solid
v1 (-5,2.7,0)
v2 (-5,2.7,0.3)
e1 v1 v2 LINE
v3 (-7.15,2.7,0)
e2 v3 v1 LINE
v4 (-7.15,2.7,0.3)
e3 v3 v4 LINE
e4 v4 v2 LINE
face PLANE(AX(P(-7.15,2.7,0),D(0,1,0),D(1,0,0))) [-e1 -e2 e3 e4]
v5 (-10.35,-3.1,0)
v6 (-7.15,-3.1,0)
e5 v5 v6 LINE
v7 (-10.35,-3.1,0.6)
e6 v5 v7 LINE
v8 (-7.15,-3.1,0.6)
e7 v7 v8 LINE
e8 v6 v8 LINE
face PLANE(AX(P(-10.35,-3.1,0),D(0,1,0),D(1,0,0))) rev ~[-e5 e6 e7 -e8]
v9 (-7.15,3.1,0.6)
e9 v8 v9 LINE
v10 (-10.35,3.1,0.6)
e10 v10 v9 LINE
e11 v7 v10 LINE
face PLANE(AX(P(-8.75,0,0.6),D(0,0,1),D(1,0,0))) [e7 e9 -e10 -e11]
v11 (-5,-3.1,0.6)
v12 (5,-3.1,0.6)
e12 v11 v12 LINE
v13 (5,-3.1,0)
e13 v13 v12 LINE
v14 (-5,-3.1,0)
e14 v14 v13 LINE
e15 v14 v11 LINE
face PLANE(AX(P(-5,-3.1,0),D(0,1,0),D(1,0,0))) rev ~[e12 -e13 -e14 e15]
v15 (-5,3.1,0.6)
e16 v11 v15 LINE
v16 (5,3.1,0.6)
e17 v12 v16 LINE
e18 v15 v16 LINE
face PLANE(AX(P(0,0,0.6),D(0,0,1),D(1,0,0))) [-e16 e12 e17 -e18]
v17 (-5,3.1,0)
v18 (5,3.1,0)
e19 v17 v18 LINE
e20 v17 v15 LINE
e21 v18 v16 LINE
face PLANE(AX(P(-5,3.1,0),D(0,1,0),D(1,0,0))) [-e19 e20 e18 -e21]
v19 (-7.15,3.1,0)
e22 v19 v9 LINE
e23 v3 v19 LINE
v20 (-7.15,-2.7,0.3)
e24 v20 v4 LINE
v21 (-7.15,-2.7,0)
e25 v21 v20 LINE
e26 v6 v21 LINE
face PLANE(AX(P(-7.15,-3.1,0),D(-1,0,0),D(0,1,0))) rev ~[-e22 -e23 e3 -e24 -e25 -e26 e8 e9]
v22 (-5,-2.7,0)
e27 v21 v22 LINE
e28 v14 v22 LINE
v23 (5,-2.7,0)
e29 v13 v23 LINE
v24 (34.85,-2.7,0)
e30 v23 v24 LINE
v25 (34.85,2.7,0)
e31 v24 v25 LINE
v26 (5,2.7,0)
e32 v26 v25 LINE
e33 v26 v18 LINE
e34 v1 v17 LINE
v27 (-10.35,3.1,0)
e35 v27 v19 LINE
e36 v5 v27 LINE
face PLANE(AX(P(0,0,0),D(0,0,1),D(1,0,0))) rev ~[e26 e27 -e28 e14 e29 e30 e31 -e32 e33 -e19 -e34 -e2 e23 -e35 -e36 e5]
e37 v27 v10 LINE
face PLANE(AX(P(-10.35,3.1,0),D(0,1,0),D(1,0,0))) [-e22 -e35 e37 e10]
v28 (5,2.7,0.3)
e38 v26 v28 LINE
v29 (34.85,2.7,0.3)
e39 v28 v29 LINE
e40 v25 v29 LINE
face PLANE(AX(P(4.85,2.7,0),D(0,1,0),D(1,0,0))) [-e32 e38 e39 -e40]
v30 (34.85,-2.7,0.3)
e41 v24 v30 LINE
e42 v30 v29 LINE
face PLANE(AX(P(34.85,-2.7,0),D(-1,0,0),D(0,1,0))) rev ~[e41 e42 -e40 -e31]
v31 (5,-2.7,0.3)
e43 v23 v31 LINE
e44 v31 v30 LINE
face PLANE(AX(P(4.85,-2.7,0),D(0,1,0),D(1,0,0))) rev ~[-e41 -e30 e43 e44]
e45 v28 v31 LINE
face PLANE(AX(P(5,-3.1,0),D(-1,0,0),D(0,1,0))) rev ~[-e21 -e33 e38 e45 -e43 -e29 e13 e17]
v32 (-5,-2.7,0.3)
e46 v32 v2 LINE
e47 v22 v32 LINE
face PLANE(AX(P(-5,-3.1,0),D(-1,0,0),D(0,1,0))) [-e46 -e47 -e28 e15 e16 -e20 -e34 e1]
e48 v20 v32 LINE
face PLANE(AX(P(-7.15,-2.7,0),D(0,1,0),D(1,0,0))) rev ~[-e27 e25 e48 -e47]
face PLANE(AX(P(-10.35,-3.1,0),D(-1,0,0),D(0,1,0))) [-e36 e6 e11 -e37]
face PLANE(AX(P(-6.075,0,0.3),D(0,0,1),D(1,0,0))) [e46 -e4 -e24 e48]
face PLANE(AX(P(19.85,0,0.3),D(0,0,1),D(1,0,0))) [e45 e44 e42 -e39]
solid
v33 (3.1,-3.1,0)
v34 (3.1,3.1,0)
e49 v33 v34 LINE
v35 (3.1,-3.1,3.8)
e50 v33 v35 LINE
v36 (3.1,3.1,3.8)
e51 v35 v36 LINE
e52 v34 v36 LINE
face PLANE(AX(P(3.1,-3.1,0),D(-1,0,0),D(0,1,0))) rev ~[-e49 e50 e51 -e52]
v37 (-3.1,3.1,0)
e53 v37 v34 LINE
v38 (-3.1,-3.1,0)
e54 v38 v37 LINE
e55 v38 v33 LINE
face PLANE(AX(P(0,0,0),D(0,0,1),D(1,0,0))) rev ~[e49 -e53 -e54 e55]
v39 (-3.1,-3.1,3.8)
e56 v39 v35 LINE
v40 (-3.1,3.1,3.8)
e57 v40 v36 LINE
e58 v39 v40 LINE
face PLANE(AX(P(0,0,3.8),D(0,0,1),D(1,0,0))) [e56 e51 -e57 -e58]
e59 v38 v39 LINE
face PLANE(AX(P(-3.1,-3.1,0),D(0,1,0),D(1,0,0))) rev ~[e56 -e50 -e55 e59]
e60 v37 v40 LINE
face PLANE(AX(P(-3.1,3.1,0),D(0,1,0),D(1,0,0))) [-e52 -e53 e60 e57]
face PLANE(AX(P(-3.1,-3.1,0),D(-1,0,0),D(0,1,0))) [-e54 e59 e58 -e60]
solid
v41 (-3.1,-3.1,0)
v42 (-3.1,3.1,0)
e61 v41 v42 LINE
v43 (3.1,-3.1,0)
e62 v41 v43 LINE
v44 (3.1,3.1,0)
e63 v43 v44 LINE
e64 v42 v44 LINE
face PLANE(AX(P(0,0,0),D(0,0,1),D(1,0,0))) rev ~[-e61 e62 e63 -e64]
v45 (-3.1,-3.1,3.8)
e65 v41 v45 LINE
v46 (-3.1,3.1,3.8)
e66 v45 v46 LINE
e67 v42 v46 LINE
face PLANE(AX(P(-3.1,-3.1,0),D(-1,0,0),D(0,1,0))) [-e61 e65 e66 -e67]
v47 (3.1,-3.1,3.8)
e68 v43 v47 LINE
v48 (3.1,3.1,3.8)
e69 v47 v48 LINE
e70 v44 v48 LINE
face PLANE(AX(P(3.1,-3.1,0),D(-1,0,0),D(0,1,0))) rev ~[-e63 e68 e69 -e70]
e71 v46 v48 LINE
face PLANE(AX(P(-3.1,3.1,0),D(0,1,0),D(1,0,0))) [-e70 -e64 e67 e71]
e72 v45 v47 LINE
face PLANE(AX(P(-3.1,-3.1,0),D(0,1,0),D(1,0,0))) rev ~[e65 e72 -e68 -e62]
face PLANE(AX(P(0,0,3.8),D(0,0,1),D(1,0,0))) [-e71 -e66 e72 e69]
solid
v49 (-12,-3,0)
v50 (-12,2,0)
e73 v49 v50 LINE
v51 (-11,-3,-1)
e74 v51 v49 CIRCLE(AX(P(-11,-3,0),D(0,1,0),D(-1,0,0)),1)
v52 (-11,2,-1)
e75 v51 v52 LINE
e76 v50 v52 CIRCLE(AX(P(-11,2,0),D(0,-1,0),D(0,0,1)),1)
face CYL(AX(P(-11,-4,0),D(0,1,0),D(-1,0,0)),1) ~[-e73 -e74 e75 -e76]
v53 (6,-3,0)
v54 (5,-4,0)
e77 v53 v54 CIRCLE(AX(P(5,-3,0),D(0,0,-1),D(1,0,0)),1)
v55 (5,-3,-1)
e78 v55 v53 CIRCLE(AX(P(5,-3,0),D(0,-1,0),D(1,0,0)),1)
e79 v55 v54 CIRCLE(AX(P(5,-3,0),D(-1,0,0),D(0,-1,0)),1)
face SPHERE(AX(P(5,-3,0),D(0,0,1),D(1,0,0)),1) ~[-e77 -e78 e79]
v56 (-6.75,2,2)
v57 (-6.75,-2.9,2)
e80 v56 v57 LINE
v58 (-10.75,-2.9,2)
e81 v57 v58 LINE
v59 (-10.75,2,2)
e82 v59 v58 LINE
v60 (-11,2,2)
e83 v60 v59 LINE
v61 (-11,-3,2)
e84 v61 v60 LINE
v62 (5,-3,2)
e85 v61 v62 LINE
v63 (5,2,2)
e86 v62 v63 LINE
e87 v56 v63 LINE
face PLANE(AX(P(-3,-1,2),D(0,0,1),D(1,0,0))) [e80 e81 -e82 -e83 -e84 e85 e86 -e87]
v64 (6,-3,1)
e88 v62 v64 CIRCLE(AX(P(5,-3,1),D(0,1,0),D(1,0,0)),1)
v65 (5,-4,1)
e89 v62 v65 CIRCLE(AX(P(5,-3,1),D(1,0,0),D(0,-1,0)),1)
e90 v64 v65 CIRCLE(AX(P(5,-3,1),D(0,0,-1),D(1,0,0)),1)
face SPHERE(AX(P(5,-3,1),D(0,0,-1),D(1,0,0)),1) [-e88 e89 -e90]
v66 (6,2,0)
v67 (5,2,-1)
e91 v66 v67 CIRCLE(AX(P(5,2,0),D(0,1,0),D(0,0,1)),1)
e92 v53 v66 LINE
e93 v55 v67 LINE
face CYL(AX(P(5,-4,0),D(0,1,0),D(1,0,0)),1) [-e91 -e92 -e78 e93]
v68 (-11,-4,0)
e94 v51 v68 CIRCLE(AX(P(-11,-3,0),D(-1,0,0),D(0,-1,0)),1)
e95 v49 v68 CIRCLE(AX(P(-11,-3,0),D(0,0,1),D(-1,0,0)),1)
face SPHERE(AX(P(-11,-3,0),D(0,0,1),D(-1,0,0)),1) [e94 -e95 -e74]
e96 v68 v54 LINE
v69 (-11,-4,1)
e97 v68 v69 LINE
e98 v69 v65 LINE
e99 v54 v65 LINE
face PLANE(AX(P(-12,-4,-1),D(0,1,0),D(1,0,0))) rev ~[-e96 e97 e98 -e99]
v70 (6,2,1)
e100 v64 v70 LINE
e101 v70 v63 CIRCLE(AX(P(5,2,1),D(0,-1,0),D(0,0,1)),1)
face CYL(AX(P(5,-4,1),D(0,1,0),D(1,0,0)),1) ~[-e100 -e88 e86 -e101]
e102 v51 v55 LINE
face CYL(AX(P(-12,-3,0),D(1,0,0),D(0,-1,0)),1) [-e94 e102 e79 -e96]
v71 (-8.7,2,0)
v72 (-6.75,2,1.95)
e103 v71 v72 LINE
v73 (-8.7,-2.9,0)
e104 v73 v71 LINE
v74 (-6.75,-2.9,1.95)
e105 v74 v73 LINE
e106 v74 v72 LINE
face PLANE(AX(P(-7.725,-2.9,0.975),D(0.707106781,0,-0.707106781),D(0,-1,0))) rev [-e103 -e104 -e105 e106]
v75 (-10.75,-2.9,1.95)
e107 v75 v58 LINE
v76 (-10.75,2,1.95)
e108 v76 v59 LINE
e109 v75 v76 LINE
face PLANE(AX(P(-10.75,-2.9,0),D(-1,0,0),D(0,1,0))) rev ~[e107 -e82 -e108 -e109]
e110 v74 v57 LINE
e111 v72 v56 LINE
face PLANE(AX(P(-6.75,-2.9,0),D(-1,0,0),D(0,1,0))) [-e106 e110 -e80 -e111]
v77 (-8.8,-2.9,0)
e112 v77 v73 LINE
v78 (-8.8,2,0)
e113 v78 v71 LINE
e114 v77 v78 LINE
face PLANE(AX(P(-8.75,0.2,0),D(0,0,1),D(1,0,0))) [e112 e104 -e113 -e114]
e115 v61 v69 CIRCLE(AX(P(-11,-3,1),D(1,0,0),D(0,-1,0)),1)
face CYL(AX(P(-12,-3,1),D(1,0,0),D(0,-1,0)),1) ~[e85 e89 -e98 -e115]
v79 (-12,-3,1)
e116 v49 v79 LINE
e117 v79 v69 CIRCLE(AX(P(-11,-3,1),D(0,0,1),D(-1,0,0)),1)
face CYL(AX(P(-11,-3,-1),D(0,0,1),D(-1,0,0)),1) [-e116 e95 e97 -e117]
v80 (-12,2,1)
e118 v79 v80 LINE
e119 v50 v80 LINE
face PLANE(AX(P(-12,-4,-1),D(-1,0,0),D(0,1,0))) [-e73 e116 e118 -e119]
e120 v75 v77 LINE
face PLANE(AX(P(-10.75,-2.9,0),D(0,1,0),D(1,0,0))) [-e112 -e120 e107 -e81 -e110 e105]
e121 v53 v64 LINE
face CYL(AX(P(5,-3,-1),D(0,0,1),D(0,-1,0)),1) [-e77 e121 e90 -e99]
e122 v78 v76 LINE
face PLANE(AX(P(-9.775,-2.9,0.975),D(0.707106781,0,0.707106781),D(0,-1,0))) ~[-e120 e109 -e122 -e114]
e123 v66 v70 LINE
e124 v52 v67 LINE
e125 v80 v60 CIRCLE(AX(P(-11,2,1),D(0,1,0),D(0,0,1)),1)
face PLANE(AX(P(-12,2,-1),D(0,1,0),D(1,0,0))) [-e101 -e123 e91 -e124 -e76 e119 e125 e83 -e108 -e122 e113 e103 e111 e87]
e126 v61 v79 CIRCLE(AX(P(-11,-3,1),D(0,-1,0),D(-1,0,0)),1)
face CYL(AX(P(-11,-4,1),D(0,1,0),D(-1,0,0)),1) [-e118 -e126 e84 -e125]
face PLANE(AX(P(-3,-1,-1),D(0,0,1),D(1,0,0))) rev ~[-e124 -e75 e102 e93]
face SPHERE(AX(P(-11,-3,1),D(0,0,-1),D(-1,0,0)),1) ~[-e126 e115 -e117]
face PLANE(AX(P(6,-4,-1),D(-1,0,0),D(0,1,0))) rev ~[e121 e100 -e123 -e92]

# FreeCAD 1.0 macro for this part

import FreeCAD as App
import Part
import Sketcher


def edges_at(feature, points):
    """Names of the edges that pass closest to the given points."""
    edges = feature.Shape.Edges
    near = lambda p: min(range(len(edges)), key=lambda i: edges[i].distToShape(Part.Vertex(*p))[0])
    return sorted({f"Edge{near(p) + 1}" for p in points})


def add_polygon(sketch, points):
    """Adds a closed chain of lines whose ends are joined by coincident constraints."""
    first, n = sketch.GeometryCount, len(points)
    for a, b in zip(points, points[1:] + points[:1]):
        sketch.addGeometry(Part.LineSegment(App.Vector(*a, 0), App.Vector(*b, 0)), False)
    for i in range(n):
        sketch.addConstraint(Sketcher.Constraint("Coincident", first + i, 2, first + (i + 1) % n, 1))

doc = App.newDocument("Part")
body = doc.addObject("PartDesign::Body", "Body")

sketch1 = doc.addObject("Sketcher::SketchObject", "Sketch")
body.addObject(sketch1)
sketch1.AttachmentSupport = (doc.XY_Plane, [""])
sketch1.MapMode = "FlatFace"
add_polygon(sketch1, [(-3.1, 3.1), (-3.1, -3.1), (3.1, -3.1), (3.1, 3.1)])
sketch1.addConstraint([
    Sketcher.Constraint("Vertical", 0),
    Sketcher.Constraint("Horizontal", 1),
    Sketcher.Constraint("Vertical", 2),
    Sketcher.Constraint("Horizontal", 3),
    Sketcher.Constraint("Symmetric", 0, 2, 2, 2, -1, 1),
    Sketcher.Constraint("Equal", 3, 0),
    Sketcher.Constraint("DistanceX", 1, 1, 1, 2, 6.2),
])
pad1 = doc.addObject("PartDesign::Pad", "Pad")
body.addObject(pad1)
pad1.Profile = sketch1
pad1.Length = 3.8
body2 = doc.addObject("PartDesign::Body", "Body001")

sketch2 = doc.addObject("Sketcher::SketchObject", "Sketch001")
body2.addObject(sketch2)
sketch2.AttachmentSupport = (doc.getObject("XY_Plane001"), [""])
sketch2.MapMode = "FlatFace"
add_polygon(sketch2, [(-10.35, 3.1), (-10.35, -3.1), (-7.15, -3.1), (-7.15, 3.1)])
sketch2.addConstraint([
    Sketcher.Constraint("Vertical", 0),
    Sketcher.Constraint("Horizontal", 1),
    Sketcher.Constraint("Vertical", 2),
    Sketcher.Constraint("Horizontal", 3),
    Sketcher.Constraint("DistanceX", 1, 1, 1, 2, 3.2),
    Sketcher.Constraint("DistanceY", 0, 2, 0, 1, 6.2),
    Sketcher.Constraint("DistanceY", 0, 2, -1, 1, 3.1),
    Sketcher.Constraint("DistanceX", 0, 2, -1, 1, 10.35),
])
pad2 = doc.addObject("PartDesign::Pad", "Pad001")
body2.addObject(pad2)
pad2.Profile = sketch2
pad2.Length = 0.6
body3 = doc.addObject("PartDesign::Body", "Body002")

sketch3 = doc.addObject("Sketcher::SketchObject", "Sketch002")
body3.addObject(sketch3)
sketch3.AttachmentSupport = (doc.getObject("XY_Plane002"), [""])
sketch3.MapMode = "FlatFace"
add_polygon(sketch3, [(-7.15, 2.7), (-7.15, -2.7), (-5, -2.7), (-5, 2.7)])
sketch3.addConstraint([
    Sketcher.Constraint("Vertical", 0),
    Sketcher.Constraint("Horizontal", 1),
    Sketcher.Constraint("Vertical", 2),
    Sketcher.Constraint("Horizontal", 3),
    Sketcher.Constraint("DistanceY", 0, 2, 0, 1, 5.4),
    Sketcher.Constraint("DistanceX", 1, 2, -1, 1, 5.0),
    Sketcher.Constraint("DistanceX", 1, 1, 1, 2, 2.15),
    Sketcher.Constraint("DistanceY", 0, 2, -1, 1, 2.7),
])
pad3 = doc.addObject("PartDesign::Pad", "Pad002")
body3.addObject(pad3)
pad3.Profile = sketch3
pad3.Length = 0.3
body4 = doc.addObject("PartDesign::Body", "Body003")

sketch4 = doc.addObject("Sketcher::SketchObject", "Sketch003")
body4.addObject(sketch4)
sketch4.AttachmentSupport = (doc.getObject("XY_Plane003"), [""])
sketch4.MapMode = "FlatFace"
add_polygon(sketch4, [(-5, 3.1), (-5, -3.1), (5, -3.1), (5, 3.1)])
sketch4.addConstraint([
    Sketcher.Constraint("Vertical", 0),
    Sketcher.Constraint("Horizontal", 1),
    Sketcher.Constraint("Vertical", 2),
    Sketcher.Constraint("Horizontal", 3),
    Sketcher.Constraint("Symmetric", 0, 2, 2, 2, -1, 1),
    Sketcher.Constraint("DistanceX", 1, 1, 1, 2, 10.0),
    Sketcher.Constraint("DistanceY", 0, 2, 0, 1, 6.2),
])
pad4 = doc.addObject("PartDesign::Pad", "Pad003")
body4.addObject(pad4)
pad4.Profile = sketch4
pad4.Length = 0.6
body5 = doc.addObject("PartDesign::Body", "Body004")
body5.AllowCompound = True

sketch5 = doc.addObject("Sketcher::SketchObject", "Sketch004")
body5.addObject(sketch5)
sketch5.AttachmentSupport = (doc.getObject("XY_Plane004"), [""])
sketch5.MapMode = "FlatFace"
add_polygon(sketch5, [(4.85, 2.7), (4.85, -2.7), (34.85, -2.7), (34.85, 2.7)])
sketch5.addConstraint([
    Sketcher.Constraint("Vertical", 0),
    Sketcher.Constraint("Horizontal", 1),
    Sketcher.Constraint("Vertical", 2),
    Sketcher.Constraint("Horizontal", 3),
    Sketcher.Constraint("DistanceX", 1, 1, 1, 2, 30.0),
    Sketcher.Constraint("DistanceY", 0, 2, 0, 1, 5.4),
    Sketcher.Constraint("DistanceY", 0, 2, -1, 1, 2.7),
    Sketcher.Constraint("DistanceX", -1, 1, 0, 2, 4.85),
])
pad5 = doc.addObject("PartDesign::Pad", "Pad004")
body5.addObject(pad5)
pad5.Profile = sketch5
pad5.Length = 0.3
doc.recompute()

boolean = doc.addObject("PartDesign::Boolean", "Boolean")
body5.addObject(boolean)
boolean.Type = "Fuse"
boolean.addObjects([body2])
doc.recompute()

boolean2 = doc.addObject("PartDesign::Boolean", "Boolean001")
body5.addObject(boolean2)
boolean2.Type = "Fuse"
boolean2.addObjects([body3])
doc.recompute()

boolean3 = doc.addObject("PartDesign::Boolean", "Boolean002")
body5.addObject(boolean3)
boolean3.Type = "Fuse"
boolean3.addObjects([body4])
body6 = doc.addObject("PartDesign::Body", "Body005")

sketch6 = doc.addObject("Sketcher::SketchObject", "Sketch005")
body6.addObject(sketch6)
sketch6.AttachmentSupport = (doc.getObject("XY_Plane005"), [""])
sketch6.MapMode = "FlatFace"
add_polygon(sketch6, [(-3.1, 3.1), (-3.1, -3.1), (3.1, -3.1), (3.1, 3.1)])
sketch6.addConstraint([
    Sketcher.Constraint("Vertical", 0),
    Sketcher.Constraint("Horizontal", 1),
    Sketcher.Constraint("Vertical", 2),
    Sketcher.Constraint("Horizontal", 3),
    Sketcher.Constraint("Symmetric", 0, 2, 2, 2, -1, 1),
    Sketcher.Constraint("Equal", 3, 0),
    Sketcher.Constraint("DistanceX", 1, 1, 1, 2, 6.2),
])
pad6 = doc.addObject("PartDesign::Pad", "Pad005")
body6.addObject(pad6)
pad6.Profile = sketch6
pad6.Length = 3.8
body7 = doc.addObject("PartDesign::Body", "Body006")

sketch7 = doc.addObject("Sketcher::SketchObject", "Sketch006")
body7.addObject(sketch7)
sketch7.AttachmentSupport = (doc.getObject("XY_Plane006"), [""])
sketch7.MapMode = "FlatFace"
add_polygon(sketch7, [(-10.75, 3.1), (-10.75, -3.1), (-6.75, -3.1), (-6.75, 3.1)])
sketch7.addConstraint([
    Sketcher.Constraint("Vertical", 0),
    Sketcher.Constraint("Horizontal", 1),
    Sketcher.Constraint("Vertical", 2),
    Sketcher.Constraint("Horizontal", 3),
    Sketcher.Constraint("DistanceX", 1, 1, 1, 2, 4.0),
    Sketcher.Constraint("DistanceY", 0, 2, 0, 1, 6.2),
    Sketcher.Constraint("DistanceY", 0, 2, -1, 1, 3.1),
    Sketcher.Constraint("DistanceX", 0, 2, -1, 1, 10.75),
])
pad7 = doc.addObject("PartDesign::Pad", "Pad006")
body7.addObject(pad7)
pad7.Profile = sketch7
pad7.Length = 3
doc.recompute()

chamfer = doc.addObject("PartDesign::Chamfer", "Chamfer")
body7.addObject(chamfer)
chamfer.Base = (pad7, edges_at(pad7, [(-10.75, 0, 0), (-6.75, 0, 0)]))
chamfer.Size = 1.95
body8 = doc.addObject("PartDesign::Body", "Body007")
doc.recompute()

body7.Placement = App.Placement(App.Vector(0, 0.2, 0), App.Rotation(App.Vector(0, 0, 1), 0))
boolean4 = doc.addObject("PartDesign::Boolean", "Boolean003")
body8.addObject(boolean4)
boolean4.Type = "Fuse"
boolean4.addObjects([body7])
body9 = doc.addObject("PartDesign::Body", "Body008")

sketch8 = doc.addObject("Sketcher::SketchObject", "Sketch007")
body9.addObject(sketch8)
sketch8.AttachmentSupport = (doc.getObject("XY_Plane008"), [""])
sketch8.MapMode = "FlatFace"
sketch8.AttachmentOffset = App.Placement(App.Vector(0, 0, -1), App.Rotation())
add_polygon(sketch8, [(-12, 2), (-12, -4), (6, -4), (6, 2)])
sketch8.addConstraint([
    Sketcher.Constraint("Vertical", 0),
    Sketcher.Constraint("Horizontal", 1),
    Sketcher.Constraint("Vertical", 2),
    Sketcher.Constraint("Horizontal", 3),
    Sketcher.Constraint("DistanceX", 1, 1, 1, 2, 18.0),
    Sketcher.Constraint("DistanceY", 0, 2, 0, 1, 6.0),
    Sketcher.Constraint("DistanceX", 0, 2, -1, 1, 12.0),
    Sketcher.Constraint("DistanceY", 0, 2, -1, 1, 4.0),
])
pad8 = doc.addObject("PartDesign::Pad", "Pad007")
body9.addObject(pad8)
pad8.Profile = sketch8
pad8.Length = 3
doc.recompute()

fillet = doc.addObject("PartDesign::Fillet", "Fillet")
body9.addObject(fillet)
fillet.Base = (pad8, edges_at(pad8, [
    (-12, -4, 0.5),
    (-12, -1, 2),
    (-12, -1, -1),
    (6, -4, 0.5),
    (6, -1, 2),
    (6, -1, -1),
    (-3, -4, -1),
    (-3, -4, 2),
]))
fillet.Radius = 1
doc.recompute()

boolean5 = doc.addObject("PartDesign::Boolean", "Boolean004")
body9.addObject(boolean5)
boolean5.Type = "Cut"
boolean5.addObjects([body8])

doc.recompute()
